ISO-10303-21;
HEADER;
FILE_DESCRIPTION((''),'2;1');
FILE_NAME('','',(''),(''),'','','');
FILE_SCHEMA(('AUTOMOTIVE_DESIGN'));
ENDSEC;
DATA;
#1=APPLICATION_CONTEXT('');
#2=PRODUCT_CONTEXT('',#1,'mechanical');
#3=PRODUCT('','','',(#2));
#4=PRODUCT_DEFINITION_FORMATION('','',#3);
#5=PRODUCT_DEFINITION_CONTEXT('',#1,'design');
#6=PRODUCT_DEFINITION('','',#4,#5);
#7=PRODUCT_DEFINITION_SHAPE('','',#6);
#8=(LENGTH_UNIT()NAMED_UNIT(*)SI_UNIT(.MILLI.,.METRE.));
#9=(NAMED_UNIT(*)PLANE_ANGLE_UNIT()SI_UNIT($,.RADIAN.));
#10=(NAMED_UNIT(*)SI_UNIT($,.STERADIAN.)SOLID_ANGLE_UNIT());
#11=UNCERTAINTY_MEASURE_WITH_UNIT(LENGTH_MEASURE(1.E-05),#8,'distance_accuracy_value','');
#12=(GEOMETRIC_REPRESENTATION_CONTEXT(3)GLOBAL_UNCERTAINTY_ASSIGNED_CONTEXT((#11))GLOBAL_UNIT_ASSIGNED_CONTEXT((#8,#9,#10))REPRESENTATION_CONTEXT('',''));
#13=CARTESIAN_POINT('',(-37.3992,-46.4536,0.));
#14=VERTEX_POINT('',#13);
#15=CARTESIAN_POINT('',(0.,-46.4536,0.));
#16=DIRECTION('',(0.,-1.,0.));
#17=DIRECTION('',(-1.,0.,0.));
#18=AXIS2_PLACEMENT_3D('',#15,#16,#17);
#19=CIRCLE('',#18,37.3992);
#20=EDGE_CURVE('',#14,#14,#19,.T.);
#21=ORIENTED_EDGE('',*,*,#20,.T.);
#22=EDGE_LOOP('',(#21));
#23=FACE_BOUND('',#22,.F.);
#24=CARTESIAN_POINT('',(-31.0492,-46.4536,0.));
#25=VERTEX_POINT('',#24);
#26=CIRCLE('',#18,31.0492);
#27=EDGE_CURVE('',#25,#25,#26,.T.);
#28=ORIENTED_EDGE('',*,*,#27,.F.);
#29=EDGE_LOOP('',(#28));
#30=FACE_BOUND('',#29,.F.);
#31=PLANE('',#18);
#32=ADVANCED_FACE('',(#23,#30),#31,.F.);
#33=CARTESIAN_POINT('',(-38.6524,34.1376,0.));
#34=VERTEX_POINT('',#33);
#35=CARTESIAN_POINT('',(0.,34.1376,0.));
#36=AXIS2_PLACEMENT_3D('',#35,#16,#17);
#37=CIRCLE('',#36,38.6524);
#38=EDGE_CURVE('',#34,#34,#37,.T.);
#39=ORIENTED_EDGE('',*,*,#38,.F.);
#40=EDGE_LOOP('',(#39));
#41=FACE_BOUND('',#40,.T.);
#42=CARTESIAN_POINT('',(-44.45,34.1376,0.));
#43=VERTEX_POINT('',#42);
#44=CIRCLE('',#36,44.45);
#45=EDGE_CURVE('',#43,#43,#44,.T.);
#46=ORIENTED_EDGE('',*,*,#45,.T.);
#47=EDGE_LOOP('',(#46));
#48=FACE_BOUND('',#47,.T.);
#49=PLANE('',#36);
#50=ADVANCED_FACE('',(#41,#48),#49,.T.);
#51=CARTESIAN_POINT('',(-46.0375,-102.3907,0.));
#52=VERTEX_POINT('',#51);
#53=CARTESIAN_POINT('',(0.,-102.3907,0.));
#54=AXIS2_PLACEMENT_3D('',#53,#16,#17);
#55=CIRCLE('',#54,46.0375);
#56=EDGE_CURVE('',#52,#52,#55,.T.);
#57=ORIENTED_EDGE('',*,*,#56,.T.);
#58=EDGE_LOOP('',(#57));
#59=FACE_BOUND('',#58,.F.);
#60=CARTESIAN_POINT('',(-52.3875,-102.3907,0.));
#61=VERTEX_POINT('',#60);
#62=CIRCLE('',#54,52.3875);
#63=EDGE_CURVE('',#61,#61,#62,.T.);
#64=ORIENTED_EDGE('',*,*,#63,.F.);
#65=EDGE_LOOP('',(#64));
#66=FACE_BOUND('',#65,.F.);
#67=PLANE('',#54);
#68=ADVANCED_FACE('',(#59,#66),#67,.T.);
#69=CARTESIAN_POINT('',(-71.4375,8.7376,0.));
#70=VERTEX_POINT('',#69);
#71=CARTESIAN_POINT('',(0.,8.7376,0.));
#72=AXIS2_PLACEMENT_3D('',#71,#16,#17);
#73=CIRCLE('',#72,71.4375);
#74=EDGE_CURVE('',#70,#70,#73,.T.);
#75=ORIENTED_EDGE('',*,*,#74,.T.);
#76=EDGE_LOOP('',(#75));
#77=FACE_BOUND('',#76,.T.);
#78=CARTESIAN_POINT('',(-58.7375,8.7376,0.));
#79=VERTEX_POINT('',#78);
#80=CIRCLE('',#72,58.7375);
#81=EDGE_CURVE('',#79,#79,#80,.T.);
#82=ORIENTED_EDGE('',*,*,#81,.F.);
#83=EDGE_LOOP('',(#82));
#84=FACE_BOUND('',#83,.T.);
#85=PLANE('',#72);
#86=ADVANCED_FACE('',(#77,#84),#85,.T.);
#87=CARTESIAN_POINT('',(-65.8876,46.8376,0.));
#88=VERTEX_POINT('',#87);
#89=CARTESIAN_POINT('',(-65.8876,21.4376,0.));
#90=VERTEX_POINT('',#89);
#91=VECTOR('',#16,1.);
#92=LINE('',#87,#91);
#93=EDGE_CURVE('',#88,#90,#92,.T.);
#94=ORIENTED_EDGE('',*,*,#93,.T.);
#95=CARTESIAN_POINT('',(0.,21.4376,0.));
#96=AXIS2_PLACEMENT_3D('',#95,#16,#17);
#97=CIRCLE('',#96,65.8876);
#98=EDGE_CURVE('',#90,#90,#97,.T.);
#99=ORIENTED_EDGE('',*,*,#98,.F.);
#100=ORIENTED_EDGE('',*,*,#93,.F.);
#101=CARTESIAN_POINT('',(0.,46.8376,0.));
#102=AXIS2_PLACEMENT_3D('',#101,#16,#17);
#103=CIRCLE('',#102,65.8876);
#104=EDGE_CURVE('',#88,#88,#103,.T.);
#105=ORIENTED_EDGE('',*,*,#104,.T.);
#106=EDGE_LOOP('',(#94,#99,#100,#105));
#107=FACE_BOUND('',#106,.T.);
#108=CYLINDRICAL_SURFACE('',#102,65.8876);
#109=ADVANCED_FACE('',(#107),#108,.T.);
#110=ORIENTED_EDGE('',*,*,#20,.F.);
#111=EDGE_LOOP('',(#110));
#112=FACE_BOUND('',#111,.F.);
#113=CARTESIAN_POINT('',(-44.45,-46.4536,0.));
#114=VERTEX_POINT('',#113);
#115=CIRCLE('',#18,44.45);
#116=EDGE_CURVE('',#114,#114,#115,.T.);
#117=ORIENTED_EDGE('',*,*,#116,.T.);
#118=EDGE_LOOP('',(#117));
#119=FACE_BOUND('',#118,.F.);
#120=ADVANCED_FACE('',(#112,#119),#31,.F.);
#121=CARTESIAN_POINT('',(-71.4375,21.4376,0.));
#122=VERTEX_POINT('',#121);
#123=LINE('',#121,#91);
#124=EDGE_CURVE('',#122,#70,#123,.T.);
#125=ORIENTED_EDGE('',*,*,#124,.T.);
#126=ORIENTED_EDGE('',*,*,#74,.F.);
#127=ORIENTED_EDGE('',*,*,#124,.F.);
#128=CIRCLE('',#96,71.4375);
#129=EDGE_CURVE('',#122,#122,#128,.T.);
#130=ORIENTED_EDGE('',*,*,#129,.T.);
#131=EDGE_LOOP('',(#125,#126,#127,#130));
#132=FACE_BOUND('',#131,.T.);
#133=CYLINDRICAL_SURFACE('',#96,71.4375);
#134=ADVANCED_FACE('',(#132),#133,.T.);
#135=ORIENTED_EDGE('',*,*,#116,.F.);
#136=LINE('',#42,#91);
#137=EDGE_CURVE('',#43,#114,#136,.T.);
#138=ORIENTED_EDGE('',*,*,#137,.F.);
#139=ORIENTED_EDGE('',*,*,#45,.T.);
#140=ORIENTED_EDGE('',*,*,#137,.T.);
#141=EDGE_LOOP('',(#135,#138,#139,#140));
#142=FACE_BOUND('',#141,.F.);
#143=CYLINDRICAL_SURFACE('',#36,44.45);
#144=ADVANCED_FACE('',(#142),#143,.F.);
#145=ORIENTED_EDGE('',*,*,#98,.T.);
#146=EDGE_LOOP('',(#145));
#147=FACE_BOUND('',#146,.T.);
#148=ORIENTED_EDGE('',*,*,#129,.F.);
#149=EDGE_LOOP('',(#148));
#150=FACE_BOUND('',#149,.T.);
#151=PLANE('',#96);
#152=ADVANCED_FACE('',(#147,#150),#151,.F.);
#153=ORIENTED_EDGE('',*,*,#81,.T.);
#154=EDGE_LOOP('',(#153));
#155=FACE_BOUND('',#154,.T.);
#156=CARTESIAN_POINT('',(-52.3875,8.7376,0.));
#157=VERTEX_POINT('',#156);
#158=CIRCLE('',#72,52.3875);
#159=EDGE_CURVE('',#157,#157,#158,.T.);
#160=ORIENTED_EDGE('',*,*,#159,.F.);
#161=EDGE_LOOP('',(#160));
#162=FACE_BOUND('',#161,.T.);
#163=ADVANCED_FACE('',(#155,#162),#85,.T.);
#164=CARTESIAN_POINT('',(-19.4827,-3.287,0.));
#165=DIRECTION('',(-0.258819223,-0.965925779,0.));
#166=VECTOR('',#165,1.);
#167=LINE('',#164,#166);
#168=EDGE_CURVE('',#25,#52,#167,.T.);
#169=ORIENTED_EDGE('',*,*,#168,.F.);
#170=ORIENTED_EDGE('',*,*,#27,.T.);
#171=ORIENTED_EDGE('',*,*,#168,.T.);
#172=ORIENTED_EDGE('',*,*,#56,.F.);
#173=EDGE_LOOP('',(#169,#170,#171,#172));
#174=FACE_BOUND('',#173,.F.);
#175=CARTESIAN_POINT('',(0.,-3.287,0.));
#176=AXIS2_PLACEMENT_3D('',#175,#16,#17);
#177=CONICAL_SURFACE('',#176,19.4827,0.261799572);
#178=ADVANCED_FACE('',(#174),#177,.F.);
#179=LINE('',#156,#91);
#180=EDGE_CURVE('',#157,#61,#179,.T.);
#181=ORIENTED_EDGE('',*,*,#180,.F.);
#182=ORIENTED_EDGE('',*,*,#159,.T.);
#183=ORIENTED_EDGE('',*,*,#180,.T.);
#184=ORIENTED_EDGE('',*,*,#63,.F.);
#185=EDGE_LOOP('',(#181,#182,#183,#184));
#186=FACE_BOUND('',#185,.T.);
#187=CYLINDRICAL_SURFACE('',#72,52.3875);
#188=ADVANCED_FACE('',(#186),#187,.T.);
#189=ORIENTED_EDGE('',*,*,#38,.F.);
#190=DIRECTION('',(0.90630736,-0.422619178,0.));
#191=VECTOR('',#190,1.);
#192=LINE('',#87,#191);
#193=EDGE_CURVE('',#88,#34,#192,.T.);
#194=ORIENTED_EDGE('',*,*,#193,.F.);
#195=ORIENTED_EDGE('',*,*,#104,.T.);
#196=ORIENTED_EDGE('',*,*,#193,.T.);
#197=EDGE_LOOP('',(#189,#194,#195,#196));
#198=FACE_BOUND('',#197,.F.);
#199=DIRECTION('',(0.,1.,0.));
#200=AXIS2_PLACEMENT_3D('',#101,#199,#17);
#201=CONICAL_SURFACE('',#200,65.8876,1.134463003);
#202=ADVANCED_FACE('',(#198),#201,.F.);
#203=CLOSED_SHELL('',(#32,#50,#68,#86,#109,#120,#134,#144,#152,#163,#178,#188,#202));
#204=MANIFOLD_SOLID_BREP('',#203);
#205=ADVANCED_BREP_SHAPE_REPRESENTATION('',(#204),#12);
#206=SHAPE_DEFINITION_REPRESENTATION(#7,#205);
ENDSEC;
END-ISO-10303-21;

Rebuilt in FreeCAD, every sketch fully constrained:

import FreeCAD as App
import Part
import Sketcher

V = App.Vector
Q = App.Units.Quantity


def add_polygon(sketch, points):
    """Adds a closed chain of lines whose ends are joined by coincident constraints."""
    first, n = sketch.GeometryCount, len(points)
    for a, b in zip(points, points[1:] + points[:1]):
        sketch.addGeometry(Part.LineSegment(App.Vector(*a, 0), App.Vector(*b, 0)), False)
    for i in range(n):
        sketch.addConstraint(Sketcher.Constraint("Coincident", first + i, 2, first + (i + 1) % n, 1))

doc = App.newDocument("Part")
body = doc.addObject("PartDesign::Body", "Body")

# Sketch on XY plane
sketch1 = doc.addObject("Sketcher::SketchObject", "Sketch")
body.addObject(sketch1)
sketch1.AttachmentSupport = (doc.XY_Plane, [""])
sketch1.MapMode = "FlatFace"
add_polygon(sketch1, [(-46, -102), (-31, -46), (-44, -46), (-44, 34), (-39, 34), (-66, 47), (-66, 21), (-71, 21), (-71, 9), (-52, 9), (-52, -102)])  # lines 0-10
sketch1.addConstraint([
    Sketcher.Constraint("Horizontal", 1),
    Sketcher.Constraint("Vertical", 2),
    Sketcher.Constraint("Horizontal", 3),
    Sketcher.Constraint("Vertical", 5),
    Sketcher.Constraint("Horizontal", 6),
    Sketcher.Constraint("Vertical", 7),
    Sketcher.Constraint("Horizontal", 8),
    Sketcher.Constraint("Vertical", 9),
    Sketcher.Constraint("Horizontal", 10),
    Sketcher.Constraint("DistanceY", 5, 2, 5, 1, Q("1 in")),
    Sketcher.Constraint("DistanceY", 7, 2, 7, 1, Q("0.5 in")),
    Sketcher.Constraint("DistanceY", 7, 2, 2, 2, Q("1 in")),
    Sketcher.Constraint("DistanceX", 7, 2, 10, 2, Q("1 in")),
    Sketcher.Constraint("DistanceX", 8, 1, 8, 2, Q("0.75 in")),
    Sketcher.Constraint("DistanceX", 1, 2, -1, 1, Q("1.75 in")),
    Sketcher.Constraint("DistanceX", 6, 2, 6, 1, Q("0.2185 in")),
    Sketcher.Constraint("DistanceX", 4, 2, -1, 1, Q("2.594 in")),
    Sketcher.Constraint("Angle", 0, Q("75 deg")),
    Sketcher.Constraint("Angle", 4, Q("155 deg")),
    Sketcher.Constraint("DistanceY", 2, 1, 2, 2, 80.5912),
    Sketcher.Constraint("DistanceX", 1, 2, 1, 1, Q("0.5276 in")),
    Sketcher.Constraint("DistanceY", -1, 1, 2, 2, Q("1.344 in")),
])
revolution = doc.addObject("PartDesign::Revolution", "Revolution")
body.addObject(revolution)
revolution.Profile = sketch1
revolution.ReferenceAxis = (sketch1, ["V_Axis"])
revolution.Angle = 360

doc.recompute()
